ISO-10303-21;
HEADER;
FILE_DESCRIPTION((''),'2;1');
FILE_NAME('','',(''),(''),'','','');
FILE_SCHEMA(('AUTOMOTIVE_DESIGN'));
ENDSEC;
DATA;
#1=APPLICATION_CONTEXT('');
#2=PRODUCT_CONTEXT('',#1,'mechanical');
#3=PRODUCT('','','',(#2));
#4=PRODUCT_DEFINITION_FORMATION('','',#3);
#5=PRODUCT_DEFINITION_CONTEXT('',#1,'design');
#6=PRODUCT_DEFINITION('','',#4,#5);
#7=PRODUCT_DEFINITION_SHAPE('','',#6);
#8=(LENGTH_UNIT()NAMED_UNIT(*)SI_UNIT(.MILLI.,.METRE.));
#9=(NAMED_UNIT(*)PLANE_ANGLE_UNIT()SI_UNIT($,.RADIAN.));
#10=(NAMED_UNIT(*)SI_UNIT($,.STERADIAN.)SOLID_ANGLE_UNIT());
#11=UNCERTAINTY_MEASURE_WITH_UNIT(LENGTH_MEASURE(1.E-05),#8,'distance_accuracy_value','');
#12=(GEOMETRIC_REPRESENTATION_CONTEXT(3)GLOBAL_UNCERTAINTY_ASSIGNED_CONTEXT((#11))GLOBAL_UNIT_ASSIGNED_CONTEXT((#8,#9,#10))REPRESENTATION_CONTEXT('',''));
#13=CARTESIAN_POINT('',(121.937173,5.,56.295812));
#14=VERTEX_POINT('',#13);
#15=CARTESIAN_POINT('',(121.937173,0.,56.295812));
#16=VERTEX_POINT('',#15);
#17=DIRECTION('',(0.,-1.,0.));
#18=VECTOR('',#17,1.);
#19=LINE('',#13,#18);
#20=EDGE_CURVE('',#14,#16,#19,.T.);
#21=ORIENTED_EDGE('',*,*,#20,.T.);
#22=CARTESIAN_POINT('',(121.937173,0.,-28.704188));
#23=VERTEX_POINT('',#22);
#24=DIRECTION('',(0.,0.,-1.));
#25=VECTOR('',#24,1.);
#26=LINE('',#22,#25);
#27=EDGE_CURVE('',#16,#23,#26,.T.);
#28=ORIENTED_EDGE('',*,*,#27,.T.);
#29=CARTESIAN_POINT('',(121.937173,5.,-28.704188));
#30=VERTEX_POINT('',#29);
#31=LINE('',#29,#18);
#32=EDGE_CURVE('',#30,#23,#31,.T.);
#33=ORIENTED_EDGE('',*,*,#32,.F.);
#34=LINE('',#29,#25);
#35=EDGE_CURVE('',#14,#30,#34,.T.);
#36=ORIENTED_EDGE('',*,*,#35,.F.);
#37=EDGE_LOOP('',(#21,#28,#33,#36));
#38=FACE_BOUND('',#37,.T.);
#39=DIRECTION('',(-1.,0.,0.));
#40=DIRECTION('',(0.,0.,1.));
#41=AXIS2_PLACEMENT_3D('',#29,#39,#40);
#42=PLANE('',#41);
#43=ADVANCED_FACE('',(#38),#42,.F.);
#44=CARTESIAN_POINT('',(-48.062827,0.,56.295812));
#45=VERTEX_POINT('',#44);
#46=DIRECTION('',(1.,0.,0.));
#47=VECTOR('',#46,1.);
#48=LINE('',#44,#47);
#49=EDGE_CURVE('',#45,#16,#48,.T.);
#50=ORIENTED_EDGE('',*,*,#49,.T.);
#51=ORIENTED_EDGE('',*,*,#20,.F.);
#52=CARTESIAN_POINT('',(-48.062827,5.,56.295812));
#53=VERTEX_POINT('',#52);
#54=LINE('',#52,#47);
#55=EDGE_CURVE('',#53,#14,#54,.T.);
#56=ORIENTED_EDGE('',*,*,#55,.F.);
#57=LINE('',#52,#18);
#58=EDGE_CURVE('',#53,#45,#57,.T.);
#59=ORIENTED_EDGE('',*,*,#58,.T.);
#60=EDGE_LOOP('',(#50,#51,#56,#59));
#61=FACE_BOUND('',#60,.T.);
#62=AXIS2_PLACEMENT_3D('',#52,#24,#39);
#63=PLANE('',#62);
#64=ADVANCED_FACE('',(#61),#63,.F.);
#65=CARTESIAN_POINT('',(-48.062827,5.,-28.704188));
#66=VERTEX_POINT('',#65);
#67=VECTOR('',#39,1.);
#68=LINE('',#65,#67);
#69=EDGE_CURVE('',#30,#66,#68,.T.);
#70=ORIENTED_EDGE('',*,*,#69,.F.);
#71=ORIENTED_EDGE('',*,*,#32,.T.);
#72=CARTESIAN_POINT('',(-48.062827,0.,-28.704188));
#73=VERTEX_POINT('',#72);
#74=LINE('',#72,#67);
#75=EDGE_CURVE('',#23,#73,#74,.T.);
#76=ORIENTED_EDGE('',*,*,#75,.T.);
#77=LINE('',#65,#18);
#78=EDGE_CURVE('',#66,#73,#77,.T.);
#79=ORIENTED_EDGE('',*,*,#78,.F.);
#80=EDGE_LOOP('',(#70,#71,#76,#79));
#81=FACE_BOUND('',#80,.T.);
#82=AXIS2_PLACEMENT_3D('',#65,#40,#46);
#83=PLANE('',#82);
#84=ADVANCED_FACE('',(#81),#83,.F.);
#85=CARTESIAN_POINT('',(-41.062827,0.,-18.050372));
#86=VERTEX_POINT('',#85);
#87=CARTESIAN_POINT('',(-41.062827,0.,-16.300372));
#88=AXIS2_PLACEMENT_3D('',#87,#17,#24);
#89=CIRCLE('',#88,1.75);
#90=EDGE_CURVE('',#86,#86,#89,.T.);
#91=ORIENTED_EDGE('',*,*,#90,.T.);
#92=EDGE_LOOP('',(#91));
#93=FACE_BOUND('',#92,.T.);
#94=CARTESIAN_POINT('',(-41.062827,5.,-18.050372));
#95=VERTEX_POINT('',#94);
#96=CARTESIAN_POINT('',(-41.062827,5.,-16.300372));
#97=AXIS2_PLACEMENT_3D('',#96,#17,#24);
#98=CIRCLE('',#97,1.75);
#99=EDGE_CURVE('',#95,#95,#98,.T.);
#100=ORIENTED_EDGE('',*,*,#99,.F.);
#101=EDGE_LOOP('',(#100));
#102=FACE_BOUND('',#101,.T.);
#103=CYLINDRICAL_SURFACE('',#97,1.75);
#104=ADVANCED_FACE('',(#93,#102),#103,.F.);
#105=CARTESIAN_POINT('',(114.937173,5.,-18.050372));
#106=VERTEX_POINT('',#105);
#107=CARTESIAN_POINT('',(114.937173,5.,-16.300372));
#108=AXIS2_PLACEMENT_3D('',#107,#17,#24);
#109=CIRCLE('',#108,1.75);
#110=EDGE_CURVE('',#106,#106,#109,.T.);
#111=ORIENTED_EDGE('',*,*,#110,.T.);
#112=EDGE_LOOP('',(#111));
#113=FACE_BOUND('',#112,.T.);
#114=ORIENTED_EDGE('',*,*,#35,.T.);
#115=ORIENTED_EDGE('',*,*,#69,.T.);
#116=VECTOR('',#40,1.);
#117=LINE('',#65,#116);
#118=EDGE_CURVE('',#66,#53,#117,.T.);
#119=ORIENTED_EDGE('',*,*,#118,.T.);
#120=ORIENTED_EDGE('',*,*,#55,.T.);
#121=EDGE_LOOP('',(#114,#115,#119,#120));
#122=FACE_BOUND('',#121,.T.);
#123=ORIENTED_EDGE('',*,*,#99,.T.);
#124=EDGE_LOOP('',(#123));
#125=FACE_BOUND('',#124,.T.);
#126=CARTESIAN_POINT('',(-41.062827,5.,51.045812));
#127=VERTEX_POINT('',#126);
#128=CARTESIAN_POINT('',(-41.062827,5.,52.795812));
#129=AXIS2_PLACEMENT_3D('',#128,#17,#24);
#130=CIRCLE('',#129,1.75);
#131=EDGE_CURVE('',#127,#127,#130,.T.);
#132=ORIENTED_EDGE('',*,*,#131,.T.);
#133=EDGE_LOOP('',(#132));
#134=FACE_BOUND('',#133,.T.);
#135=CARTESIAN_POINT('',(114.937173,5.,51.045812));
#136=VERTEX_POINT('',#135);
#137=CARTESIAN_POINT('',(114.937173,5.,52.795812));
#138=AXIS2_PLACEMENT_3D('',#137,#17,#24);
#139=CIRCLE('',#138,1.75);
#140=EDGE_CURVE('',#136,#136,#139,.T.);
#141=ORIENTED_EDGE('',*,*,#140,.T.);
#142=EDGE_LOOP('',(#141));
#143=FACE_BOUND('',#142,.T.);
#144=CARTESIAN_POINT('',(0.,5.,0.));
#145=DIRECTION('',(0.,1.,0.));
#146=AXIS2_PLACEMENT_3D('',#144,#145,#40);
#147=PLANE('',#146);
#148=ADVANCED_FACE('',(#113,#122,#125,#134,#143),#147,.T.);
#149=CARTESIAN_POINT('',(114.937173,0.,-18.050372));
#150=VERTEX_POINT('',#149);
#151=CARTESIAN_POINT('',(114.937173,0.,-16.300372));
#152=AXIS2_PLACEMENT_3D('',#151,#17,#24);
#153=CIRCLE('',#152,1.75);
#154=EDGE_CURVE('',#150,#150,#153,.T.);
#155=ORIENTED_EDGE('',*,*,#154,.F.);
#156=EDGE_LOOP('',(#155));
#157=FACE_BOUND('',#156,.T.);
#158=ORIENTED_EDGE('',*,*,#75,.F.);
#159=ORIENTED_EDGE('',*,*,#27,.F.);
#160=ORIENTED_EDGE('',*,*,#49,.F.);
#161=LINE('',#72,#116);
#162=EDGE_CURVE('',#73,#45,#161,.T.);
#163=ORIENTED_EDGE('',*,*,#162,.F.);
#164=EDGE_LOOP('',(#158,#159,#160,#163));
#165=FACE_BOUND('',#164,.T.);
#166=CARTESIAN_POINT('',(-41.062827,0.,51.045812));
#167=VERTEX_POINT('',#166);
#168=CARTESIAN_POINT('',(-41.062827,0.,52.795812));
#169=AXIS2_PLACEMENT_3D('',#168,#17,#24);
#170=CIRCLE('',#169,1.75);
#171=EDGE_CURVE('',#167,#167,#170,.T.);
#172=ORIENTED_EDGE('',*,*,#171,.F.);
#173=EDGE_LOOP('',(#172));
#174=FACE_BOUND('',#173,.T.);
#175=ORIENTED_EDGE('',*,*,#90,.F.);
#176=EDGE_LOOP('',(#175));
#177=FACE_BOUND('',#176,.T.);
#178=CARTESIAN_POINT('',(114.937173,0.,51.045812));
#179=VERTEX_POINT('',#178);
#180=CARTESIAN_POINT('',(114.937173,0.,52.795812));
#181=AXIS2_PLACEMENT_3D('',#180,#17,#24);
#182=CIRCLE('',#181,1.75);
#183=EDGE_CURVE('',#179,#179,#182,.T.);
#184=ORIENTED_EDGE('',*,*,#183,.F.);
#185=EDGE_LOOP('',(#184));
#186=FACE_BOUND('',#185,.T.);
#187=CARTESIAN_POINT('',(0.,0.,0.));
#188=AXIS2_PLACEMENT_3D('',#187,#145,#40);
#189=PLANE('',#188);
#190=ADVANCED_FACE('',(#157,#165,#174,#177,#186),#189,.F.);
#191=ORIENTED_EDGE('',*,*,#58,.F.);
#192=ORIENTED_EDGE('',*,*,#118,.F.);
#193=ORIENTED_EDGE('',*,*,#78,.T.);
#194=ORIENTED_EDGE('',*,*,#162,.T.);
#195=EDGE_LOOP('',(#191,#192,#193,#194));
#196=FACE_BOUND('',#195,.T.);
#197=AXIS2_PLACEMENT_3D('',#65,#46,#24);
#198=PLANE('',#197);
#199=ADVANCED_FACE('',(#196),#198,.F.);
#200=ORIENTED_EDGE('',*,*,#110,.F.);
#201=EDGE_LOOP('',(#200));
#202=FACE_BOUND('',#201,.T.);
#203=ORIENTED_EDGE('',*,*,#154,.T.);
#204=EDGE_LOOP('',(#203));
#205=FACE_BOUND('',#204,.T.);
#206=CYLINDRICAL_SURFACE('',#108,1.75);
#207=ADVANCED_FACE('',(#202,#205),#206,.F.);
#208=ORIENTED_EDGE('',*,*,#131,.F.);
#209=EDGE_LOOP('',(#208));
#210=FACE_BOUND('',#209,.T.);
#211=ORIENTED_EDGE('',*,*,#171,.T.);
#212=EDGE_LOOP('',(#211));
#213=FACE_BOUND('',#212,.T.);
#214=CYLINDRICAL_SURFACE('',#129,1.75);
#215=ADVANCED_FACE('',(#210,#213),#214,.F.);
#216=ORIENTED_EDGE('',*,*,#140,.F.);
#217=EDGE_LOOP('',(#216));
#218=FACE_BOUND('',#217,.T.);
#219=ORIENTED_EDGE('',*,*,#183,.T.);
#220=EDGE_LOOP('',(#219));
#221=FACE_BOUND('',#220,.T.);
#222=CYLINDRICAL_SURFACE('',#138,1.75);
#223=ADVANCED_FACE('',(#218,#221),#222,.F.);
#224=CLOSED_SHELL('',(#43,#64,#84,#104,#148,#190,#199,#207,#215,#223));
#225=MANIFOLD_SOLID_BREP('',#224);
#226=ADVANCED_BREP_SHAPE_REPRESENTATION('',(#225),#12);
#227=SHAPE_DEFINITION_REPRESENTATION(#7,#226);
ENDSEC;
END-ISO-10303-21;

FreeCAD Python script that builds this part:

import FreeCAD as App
import Part
import Sketcher

V = App.Vector
Q = App.Units.Quantity


def add_polygon(sketch, points):
    """Adds a closed chain of lines whose ends are joined by coincident constraints."""
    first, n = sketch.GeometryCount, len(points)
    for a, b in zip(points, points[1:] + points[:1]):
        sketch.addGeometry(Part.LineSegment(App.Vector(*a, 0), App.Vector(*b, 0)), False)
    for i in range(n):
        sketch.addConstraint(Sketcher.Constraint("Coincident", first + i, 2, first + (i + 1) % n, 1))

doc = App.newDocument("Part")
body = doc.addObject("PartDesign::Body", "Body")

# Sketch on XZ plane
sketch1 = body.newObject("Sketcher::SketchObject", "Sketch")
sketch1.AttachmentSupport = (doc.getObject("XZ_Plane"), [""])
sketch1.MapMode = "FlatFace"
add_polygon(sketch1, [(-48.062827, -28.704188), (-48.062827, 56.295812), (121.937173, 56.295812), (121.937173, -28.704188)])  # lines 0-3
sketch1.addConstraint([
    Sketcher.Constraint("Vertical", 0),
    Sketcher.Constraint("Horizontal", 1),
    Sketcher.Constraint("Vertical", 2),
    Sketcher.Constraint("Horizontal", 3),
    Sketcher.Constraint("DistanceX", 1, 1, 1, 2, Q("170 mm")),
    Sketcher.Constraint("DistanceY", 0, 1, 0, 2, Q("85 mm")),
    Sketcher.Constraint("DistanceY", -1, 1, 0, 2, Q("56.295812 mm")),
    Sketcher.Constraint("DistanceX", 0, 2, -1, 1, Q("48.062827 mm")),
])
pad1 = body.newObject("PartDesign::Pad", "Pad")
pad1.Profile = sketch1
pad1.Length = 5
pad1.Reversed = True

# Sketch on XZ plane
sketch2 = body.newObject("Sketcher::SketchObject", "Sketch001")
sketch2.AttachmentSupport = (doc.getObject("XZ_Plane"), [""])
sketch2.MapMode = "FlatFace"
sketch2.addGeometry([
    Part.Circle(V(-41.062827, 52.795812, 0), V(0, 0, 1), 1.75),
    Part.Circle(V(-41.062827, -16.300372, 0), V(0, 0, 1), 1.75),
    Part.Circle(V(114.937173, -16.300372, 0), V(0, 0, 1), 1.75),
    Part.Circle(V(114.937173, 52.795812, 0), V(0, 0, 1), 1.75),
], False)
sketch2.addConstraint([
    Sketcher.Constraint("Equal", 0, 1),
    Sketcher.Constraint("Equal", 1, 2),
    Sketcher.Constraint("Equal", 2, 3),
    Sketcher.Constraint("Horizontal", 1, 3, 2, 3),
    Sketcher.Constraint("Horizontal", 0, 3, 3, 3),
    Sketcher.Constraint("Vertical", 0, 3, 1, 3),
    Sketcher.Constraint("Vertical", 2, 3, 3, 3),
    Sketcher.Constraint("Diameter", 0, Q("3.5 mm")),
    Sketcher.Constraint("DistanceX", 1, 3, 2, 3, Q("156 mm")),
    Sketcher.Constraint("DistanceY", -1, 1, 0, 3, Q("52.795812 mm")),
    Sketcher.Constraint("DistanceX", 0, 3, -1, 1, Q("41.062827 mm")),
    Sketcher.Constraint("DistanceY", 1, 3, -1, 1, Q("16.300372 mm")),
])
pocket1 = body.newObject("PartDesign::Pocket", "Pocket")
pocket1.Profile = sketch2
pocket1.Type = "ThroughAll"

doc.recompute()
